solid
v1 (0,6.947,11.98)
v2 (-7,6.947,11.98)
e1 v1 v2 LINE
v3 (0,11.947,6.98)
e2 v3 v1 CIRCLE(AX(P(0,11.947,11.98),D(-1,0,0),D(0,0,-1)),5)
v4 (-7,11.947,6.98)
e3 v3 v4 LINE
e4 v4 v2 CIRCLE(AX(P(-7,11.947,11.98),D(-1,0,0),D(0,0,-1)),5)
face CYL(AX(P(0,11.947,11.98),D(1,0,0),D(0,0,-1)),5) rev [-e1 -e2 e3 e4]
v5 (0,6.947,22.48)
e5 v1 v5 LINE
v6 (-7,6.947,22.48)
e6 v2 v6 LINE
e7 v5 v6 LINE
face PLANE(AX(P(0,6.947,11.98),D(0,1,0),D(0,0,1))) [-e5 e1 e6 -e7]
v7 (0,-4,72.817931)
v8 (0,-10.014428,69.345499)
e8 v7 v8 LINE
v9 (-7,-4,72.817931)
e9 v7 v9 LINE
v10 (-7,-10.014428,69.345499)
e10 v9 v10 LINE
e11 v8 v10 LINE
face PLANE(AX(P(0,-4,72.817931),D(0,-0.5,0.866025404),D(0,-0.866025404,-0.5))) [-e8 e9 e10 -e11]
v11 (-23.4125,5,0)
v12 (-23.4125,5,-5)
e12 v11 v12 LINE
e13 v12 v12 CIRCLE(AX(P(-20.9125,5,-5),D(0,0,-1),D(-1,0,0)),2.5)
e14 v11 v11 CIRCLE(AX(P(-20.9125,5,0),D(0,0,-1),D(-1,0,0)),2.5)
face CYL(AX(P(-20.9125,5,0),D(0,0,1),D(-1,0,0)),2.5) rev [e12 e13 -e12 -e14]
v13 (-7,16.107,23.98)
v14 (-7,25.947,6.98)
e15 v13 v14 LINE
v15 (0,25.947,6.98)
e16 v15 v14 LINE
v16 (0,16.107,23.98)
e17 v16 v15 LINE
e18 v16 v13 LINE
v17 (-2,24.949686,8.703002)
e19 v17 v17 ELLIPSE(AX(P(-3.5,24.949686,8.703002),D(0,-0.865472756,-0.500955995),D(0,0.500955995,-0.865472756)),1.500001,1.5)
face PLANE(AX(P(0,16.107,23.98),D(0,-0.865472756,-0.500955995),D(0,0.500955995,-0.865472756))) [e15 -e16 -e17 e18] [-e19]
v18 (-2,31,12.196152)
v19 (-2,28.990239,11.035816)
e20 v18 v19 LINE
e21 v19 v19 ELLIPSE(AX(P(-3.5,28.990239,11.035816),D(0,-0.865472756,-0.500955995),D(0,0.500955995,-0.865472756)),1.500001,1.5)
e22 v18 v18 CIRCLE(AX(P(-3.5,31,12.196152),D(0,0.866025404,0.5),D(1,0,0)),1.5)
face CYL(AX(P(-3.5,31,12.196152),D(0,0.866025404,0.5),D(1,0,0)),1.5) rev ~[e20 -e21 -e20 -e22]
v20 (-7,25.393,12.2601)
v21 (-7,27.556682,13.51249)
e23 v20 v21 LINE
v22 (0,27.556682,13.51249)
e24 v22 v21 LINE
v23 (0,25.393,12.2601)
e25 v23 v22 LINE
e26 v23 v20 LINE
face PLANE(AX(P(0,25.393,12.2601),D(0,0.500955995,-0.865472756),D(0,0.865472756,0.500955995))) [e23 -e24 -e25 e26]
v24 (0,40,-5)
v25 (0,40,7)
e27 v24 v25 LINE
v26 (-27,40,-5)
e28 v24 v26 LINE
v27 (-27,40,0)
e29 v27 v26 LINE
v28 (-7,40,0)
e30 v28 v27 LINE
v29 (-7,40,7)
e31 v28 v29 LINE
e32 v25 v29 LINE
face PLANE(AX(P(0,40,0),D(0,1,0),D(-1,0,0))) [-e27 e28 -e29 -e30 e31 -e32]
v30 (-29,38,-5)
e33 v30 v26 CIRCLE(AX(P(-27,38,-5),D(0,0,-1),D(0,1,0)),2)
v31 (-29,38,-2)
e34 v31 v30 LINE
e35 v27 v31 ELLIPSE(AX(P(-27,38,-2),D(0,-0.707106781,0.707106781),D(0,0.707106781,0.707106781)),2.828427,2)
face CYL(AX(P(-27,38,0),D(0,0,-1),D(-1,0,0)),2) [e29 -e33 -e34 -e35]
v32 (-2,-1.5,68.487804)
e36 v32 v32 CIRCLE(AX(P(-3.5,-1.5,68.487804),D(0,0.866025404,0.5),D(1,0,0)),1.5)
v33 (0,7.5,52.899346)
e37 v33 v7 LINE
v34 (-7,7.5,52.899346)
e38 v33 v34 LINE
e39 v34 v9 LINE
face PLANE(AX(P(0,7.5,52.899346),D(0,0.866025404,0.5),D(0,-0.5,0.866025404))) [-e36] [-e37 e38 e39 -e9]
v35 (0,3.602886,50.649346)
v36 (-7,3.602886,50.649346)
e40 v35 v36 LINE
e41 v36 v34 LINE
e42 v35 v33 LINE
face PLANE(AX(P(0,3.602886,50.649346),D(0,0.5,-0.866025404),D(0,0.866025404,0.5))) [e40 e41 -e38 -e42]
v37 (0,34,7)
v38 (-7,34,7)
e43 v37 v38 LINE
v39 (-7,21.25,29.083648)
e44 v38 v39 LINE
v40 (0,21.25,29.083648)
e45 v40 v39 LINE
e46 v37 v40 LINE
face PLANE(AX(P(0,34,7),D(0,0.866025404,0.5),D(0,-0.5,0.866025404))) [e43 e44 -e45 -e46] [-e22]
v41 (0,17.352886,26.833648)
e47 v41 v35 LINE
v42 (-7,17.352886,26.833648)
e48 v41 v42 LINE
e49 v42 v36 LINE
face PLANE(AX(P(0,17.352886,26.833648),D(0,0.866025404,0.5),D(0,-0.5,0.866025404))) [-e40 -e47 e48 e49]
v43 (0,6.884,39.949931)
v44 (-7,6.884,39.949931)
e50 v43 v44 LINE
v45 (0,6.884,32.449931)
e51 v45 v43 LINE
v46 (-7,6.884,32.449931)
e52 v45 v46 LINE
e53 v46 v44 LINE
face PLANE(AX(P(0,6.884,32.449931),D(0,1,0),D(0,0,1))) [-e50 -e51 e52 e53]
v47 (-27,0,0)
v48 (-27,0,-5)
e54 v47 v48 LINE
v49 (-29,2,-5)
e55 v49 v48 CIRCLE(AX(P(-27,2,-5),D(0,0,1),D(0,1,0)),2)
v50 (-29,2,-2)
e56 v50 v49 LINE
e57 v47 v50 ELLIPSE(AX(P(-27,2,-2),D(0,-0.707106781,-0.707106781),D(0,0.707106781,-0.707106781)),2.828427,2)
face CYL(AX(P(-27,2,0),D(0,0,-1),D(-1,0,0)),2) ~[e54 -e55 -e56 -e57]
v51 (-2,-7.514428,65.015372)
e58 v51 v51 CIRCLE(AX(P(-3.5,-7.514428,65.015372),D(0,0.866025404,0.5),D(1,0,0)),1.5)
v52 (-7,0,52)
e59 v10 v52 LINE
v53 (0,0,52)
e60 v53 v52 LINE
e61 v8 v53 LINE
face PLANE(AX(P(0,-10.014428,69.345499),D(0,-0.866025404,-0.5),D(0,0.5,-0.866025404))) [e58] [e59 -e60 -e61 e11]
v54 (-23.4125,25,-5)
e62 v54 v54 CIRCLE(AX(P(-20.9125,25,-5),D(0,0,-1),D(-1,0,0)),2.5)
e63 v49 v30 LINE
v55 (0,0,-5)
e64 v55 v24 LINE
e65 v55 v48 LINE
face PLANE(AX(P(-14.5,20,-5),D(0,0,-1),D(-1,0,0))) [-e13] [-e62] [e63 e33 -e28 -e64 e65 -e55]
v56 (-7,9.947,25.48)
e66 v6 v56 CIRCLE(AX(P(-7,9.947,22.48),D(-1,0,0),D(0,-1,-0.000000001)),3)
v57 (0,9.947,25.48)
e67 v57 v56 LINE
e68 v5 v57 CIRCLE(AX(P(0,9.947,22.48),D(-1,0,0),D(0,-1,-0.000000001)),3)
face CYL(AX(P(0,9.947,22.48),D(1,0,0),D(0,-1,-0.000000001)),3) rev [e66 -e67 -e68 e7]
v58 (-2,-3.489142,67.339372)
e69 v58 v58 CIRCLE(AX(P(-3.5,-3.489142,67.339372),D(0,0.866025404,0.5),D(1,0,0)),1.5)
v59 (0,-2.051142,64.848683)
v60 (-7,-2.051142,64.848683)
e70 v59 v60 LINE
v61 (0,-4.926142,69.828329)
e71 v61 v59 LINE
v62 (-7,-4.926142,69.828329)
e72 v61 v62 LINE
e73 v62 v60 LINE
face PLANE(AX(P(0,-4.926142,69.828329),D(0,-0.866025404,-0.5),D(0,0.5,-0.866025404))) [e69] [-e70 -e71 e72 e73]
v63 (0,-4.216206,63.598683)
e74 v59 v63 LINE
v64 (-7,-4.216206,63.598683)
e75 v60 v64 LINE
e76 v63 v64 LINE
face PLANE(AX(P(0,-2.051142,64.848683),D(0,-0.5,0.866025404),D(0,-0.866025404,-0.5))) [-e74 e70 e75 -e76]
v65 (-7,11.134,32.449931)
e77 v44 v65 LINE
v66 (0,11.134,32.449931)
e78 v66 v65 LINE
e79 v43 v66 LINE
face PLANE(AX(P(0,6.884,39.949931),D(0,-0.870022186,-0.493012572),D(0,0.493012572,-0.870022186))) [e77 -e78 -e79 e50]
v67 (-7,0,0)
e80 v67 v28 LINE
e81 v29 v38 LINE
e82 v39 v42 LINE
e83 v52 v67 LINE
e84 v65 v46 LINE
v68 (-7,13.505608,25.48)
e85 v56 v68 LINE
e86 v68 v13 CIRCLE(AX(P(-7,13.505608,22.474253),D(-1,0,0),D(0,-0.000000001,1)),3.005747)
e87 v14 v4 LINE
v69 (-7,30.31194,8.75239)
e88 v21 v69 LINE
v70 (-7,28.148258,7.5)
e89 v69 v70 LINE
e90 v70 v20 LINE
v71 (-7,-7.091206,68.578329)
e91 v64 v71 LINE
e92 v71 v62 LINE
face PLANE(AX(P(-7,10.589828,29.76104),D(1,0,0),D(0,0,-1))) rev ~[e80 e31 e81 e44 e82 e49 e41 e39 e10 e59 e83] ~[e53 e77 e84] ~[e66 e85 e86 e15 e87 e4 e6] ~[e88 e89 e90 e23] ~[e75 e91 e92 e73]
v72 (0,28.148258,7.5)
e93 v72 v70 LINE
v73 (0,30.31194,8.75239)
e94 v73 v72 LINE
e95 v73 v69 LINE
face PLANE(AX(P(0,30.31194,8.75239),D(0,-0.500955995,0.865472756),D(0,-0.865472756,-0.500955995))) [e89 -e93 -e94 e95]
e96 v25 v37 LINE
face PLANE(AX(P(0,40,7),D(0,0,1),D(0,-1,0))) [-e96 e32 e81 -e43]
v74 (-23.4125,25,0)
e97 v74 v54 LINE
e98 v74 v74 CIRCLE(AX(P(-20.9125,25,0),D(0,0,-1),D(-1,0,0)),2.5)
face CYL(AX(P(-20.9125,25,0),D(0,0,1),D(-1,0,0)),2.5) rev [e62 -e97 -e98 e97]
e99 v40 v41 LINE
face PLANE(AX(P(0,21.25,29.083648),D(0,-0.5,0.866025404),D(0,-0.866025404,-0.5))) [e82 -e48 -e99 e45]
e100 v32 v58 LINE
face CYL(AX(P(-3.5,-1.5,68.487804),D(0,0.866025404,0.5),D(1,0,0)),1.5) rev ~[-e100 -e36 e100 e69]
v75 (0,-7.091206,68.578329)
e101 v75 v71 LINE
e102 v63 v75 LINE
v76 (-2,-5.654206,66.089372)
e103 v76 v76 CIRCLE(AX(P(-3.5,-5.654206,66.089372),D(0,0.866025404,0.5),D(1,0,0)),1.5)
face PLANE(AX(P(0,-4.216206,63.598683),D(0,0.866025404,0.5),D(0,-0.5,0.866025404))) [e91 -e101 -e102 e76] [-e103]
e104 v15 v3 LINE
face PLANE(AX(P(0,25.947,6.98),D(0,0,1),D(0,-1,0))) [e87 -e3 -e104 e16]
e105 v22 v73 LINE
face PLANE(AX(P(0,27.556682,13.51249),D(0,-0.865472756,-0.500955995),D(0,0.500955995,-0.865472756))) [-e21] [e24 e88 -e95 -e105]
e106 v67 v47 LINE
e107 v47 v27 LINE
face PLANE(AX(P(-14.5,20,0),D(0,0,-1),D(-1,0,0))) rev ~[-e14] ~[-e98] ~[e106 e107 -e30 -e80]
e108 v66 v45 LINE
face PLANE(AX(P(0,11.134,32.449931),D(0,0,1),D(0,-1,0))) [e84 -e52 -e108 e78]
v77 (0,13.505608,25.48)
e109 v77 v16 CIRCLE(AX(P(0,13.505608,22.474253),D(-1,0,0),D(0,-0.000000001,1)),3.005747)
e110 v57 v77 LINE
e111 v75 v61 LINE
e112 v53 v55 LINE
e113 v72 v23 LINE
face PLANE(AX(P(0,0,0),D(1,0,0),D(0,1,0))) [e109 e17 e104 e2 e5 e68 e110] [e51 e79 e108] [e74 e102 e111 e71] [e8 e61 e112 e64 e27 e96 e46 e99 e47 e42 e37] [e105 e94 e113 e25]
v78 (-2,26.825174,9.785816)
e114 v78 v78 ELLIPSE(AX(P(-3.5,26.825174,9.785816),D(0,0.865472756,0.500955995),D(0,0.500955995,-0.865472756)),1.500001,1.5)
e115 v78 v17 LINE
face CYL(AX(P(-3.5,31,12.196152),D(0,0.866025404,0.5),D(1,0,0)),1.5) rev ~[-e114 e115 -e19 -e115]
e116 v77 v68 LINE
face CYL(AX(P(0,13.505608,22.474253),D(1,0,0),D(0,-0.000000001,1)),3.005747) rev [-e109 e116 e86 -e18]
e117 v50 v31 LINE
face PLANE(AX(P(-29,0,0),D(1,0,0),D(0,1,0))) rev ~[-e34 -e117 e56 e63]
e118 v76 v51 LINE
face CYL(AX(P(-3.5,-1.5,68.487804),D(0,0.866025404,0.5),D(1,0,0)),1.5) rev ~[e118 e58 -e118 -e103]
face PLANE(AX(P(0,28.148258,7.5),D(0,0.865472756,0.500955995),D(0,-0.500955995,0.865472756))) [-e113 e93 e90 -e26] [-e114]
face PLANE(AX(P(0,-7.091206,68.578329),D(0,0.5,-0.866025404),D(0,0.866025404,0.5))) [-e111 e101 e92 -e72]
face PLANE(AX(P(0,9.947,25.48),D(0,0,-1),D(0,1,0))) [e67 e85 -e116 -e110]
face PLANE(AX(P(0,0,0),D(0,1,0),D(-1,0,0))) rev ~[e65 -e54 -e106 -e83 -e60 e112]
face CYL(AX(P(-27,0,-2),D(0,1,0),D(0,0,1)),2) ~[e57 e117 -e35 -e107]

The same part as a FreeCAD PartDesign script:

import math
import FreeCAD as App
import Part
import Sketcher
from FreeCAD import Vector
Q = App.Units.Quantity


def edges_at(feature, points):
    """Names of the edges that pass closest to the given points."""
    edges = feature.Shape.Edges
    near = lambda p: min(range(len(edges)), key=lambda i: edges[i].distToShape(Part.Vertex(*p))[0])
    return sorted({f"Edge{near(p) + 1}" for p in points})

doc = App.newDocument("Part")
body = doc.addObject("PartDesign::Body", "Body")

# Sketch on YZ plane
sketch1 = body.newObject("Sketcher::SketchObject", "Sketch")
sketch1.AttachmentSupport = (doc.getObject("YZ_Plane"), [""])
sketch1.MapMode = "FlatFace"
sketch1.addGeometry(Part.LineSegment(Vector(0, 0, 0), Vector(40, 0, 0)), False)
sketch1.addGeometry(Part.LineSegment(Vector(40, 0, 0), Vector(40, 7, 0)), False)
sketch1.addGeometry(Part.LineSegment(Vector(40, 7, 0), Vector(34, 7, 0)), False)
sketch1.addGeometry(Part.LineSegment(Vector(34, 7, 0), Vector(21.2, 29.1, 0)), False)
sketch1.addGeometry(Part.LineSegment(Vector(21.2, 29.1, 0), Vector(17.4, 26.8, 0)), False)
sketch1.addGeometry(Part.LineSegment(Vector(17.4, 26.8, 0), Vector(3.6, 50.6, 0)), False)
sketch1.addGeometry(Part.LineSegment(Vector(3.6, 50.6, 0), Vector(7.5, 52.9, 0)), False)
sketch1.addGeometry(Part.LineSegment(Vector(7.5, 52.9, 0), Vector(-4, 72.8, 0)), False)
sketch1.addGeometry(Part.LineSegment(Vector(-4, 72.8, 0), Vector(-10, 69.3, 0)), False)
sketch1.addGeometry(Part.LineSegment(Vector(-10, 69.3, 0), Vector(0, 52, 0)), False)
sketch1.addGeometry(Part.LineSegment(Vector(0, 52, 0), Vector(0, 0, 0)), False)
sketch1.addGeometry(Part.LineSegment(Vector(-7.1, 68.6, 0), Vector(-4.9, 69.8, 0)), False)
sketch1.addGeometry(Part.LineSegment(Vector(-4.9, 69.8, 0), Vector(-2.1, 64.8, 0)), False)
sketch1.addGeometry(Part.LineSegment(Vector(-2.1, 64.8, 0), Vector(-4.2, 63.6, 0)), False)
sketch1.addGeometry(Part.LineSegment(Vector(-4.2, 63.6, 0), Vector(-7.1, 68.6, 0)), False)
sketch1.addGeometry(Part.LineSegment(Vector(6.9, 32.4, 0), Vector(6.9, 39.9, 0)), False)
sketch1.addGeometry(Part.LineSegment(Vector(6.9, 39.9, 0), Vector(11.1, 32.4, 0)), False)
sketch1.addGeometry(Part.LineSegment(Vector(11.1, 32.4, 0), Vector(6.9, 32.4, 0)), False)
sketch1.addGeometry(Part.LineSegment(Vector(16.1, 24, 0), Vector(25.9, 7, 0)), False)
sketch1.addGeometry(Part.LineSegment(Vector(25.9, 7, 0), Vector(11.9, 7, 0)), False)
sketch1.addGeometry(Part.ArcOfCircle(Part.Circle(Vector(11.9, 12, 0), Vector(0, 0, 1), 5), math.radians(180), math.radians(270)), False)
sketch1.addGeometry(Part.LineSegment(Vector(6.9, 12, 0), Vector(6.9, 22.5, 0)), False)
sketch1.addGeometry(Part.ArcOfCircle(Part.Circle(Vector(9.9, 22.5, 0), Vector(0, 0, 1), 3), math.radians(90), math.radians(180)), False)
sketch1.addGeometry(Part.LineSegment(Vector(9.9, 25.5, 0), Vector(13.5, 25.5, 0)), False)
sketch1.addGeometry(Part.ArcOfCircle(Part.Circle(Vector(13.5, 22.5, 0), Vector(0, 0, 1), 3), math.radians(30), math.radians(90)), False)
sketch1.addGeometry(Part.LineSegment(Vector(25.4, 12.3, 0), Vector(27.6, 13.5, 0)), False)
sketch1.addGeometry(Part.LineSegment(Vector(27.6, 13.5, 0), Vector(30.3, 8.8, 0)), False)
sketch1.addGeometry(Part.LineSegment(Vector(30.3, 8.8, 0), Vector(28.1, 7.5, 0)), False)
sketch1.addGeometry(Part.LineSegment(Vector(28.1, 7.5, 0), Vector(25.4, 12.3, 0)), False)
sketch1.addConstraint(Sketcher.Constraint("Coincident", 0, 2, 1, 1))
sketch1.addConstraint(Sketcher.Constraint("Coincident", 1, 2, 2, 1))
sketch1.addConstraint(Sketcher.Constraint("Coincident", 2, 2, 3, 1))
sketch1.addConstraint(Sketcher.Constraint("Coincident", 3, 2, 4, 1))
sketch1.addConstraint(Sketcher.Constraint("Coincident", 4, 2, 5, 1))
sketch1.addConstraint(Sketcher.Constraint("Coincident", 5, 2, 6, 1))
sketch1.addConstraint(Sketcher.Constraint("Coincident", 6, 2, 7, 1))
sketch1.addConstraint(Sketcher.Constraint("Coincident", 7, 2, 8, 1))
sketch1.addConstraint(Sketcher.Constraint("Coincident", 8, 2, 9, 1))
sketch1.addConstraint(Sketcher.Constraint("Coincident", 9, 2, 10, 1))
sketch1.addConstraint(Sketcher.Constraint("Coincident", 10, 2, 0, 1))
sketch1.addConstraint(Sketcher.Constraint("Coincident", 11, 2, 12, 1))
sketch1.addConstraint(Sketcher.Constraint("Coincident", 12, 2, 13, 1))
sketch1.addConstraint(Sketcher.Constraint("Coincident", 13, 2, 14, 1))
sketch1.addConstraint(Sketcher.Constraint("Coincident", 14, 2, 11, 1))
sketch1.addConstraint(Sketcher.Constraint("Coincident", 15, 2, 16, 1))
sketch1.addConstraint(Sketcher.Constraint("Coincident", 16, 2, 17, 1))
sketch1.addConstraint(Sketcher.Constraint("Coincident", 17, 2, 15, 1))
sketch1.addConstraint(Sketcher.Constraint("Coincident", 18, 2, 19, 1))
sketch1.addConstraint(Sketcher.Constraint("Tangent", 19, 2, 20, 2))
sketch1.addConstraint(Sketcher.Constraint("Tangent", 20, 1, 21, 1))
sketch1.addConstraint(Sketcher.Constraint("Tangent", 21, 2, 22, 2))
sketch1.addConstraint(Sketcher.Constraint("Tangent", 22, 1, 23, 1))
sketch1.addConstraint(Sketcher.Constraint("Tangent", 23, 2, 24, 2))
sketch1.addConstraint(Sketcher.Constraint("Tangent", 24, 1, 18, 1))
sketch1.addConstraint(Sketcher.Constraint("Coincident", 25, 2, 26, 1))
sketch1.addConstraint(Sketcher.Constraint("Coincident", 26, 2, 27, 1))
sketch1.addConstraint(Sketcher.Constraint("Coincident", 27, 2, 28, 1))
sketch1.addConstraint(Sketcher.Constraint("Coincident", 28, 2, 25, 1))
sketch1.addConstraint(Sketcher.Constraint("Horizontal", 0))
sketch1.addConstraint(Sketcher.Constraint("Vertical", 1))
sketch1.addConstraint(Sketcher.Constraint("Horizontal", 2))
sketch1.addConstraint(Sketcher.Constraint("Vertical", 10))
sketch1.addConstraint(Sketcher.Constraint("Vertical", 15))
sketch1.addConstraint(Sketcher.Constraint("Horizontal", 17))
sketch1.addConstraint(Sketcher.Constraint("Horizontal", 19))
sketch1.addConstraint(Sketcher.Constraint("Vertical", 21))
sketch1.addConstraint(Sketcher.Constraint("Horizontal", 23))
sketch1.addConstraint(Sketcher.Constraint("Coincident", 10, 2, -1, 1))
sketch1.addConstraint(Sketcher.Constraint("Perpendicular", 3, 4))
sketch1.addConstraint(Sketcher.Constraint("Perpendicular", 4, 5))
sketch1.addConstraint(Sketcher.Constraint("Perpendicular", 5, 6))
sketch1.addConstraint(Sketcher.Constraint("Perpendicular", 6, 7))
sketch1.addConstraint(Sketcher.Constraint("Perpendicular", 7, 8))
sketch1.addConstraint(Sketcher.Constraint("Perpendicular", 8, 9))
sketch1.addConstraint(Sketcher.Constraint("Perpendicular", 9, 11))
sketch1.addConstraint(Sketcher.Constraint("Perpendicular", 11, 12))
sketch1.addConstraint(Sketcher.Constraint("Perpendicular", 12, 13))
sketch1.addConstraint(Sketcher.Constraint("Perpendicular", 13, 14))
sketch1.addConstraint(Sketcher.Constraint("Perpendicular", 18, 25))
sketch1.addConstraint(Sketcher.Constraint("Perpendicular", 25, 26))
sketch1.addConstraint(Sketcher.Constraint("Perpendicular", 26, 27))
sketch1.addConstraint(Sketcher.Constraint("Perpendicular", 27, 28))
sketch1.addConstraint(Sketcher.Constraint("Equal", 4, 6))
sketch1.addConstraint(Sketcher.Constraint("Equal", 13, 25))
sketch1.addConstraint(Sketcher.Constraint("Radius", 20, 5.0))
sketch1.addConstraint(Sketcher.Constraint("Radius", 22, 3.0))
sketch1.addConstraint(Sketcher.Constraint("DistanceX", 0, 1, 0, 2, 40.0))
sketch1.addConstraint(Sketcher.Constraint("DistanceX", 2, 2, 2, 1, 6.0))
sketch1.addConstraint(Sketcher.Constraint("DistanceX", 19, 2, 19, 1, 14.0))
sketch1.addConstraint(Sketcher.Constraint("DistanceY", 1, 1, 1, 2, 7.0))
sketch1.addConstraint(Sketcher.Constraint("DistanceY", 10, 2, 10, 1, 52.0))
sketch1.addConstraint(Sketcher.Constraint("Angle", 3, Q("120 deg")))
sketch1.addConstraint(Sketcher.Constraint("Distance", 7, 23.0))
sketch1.addConstraint(Sketcher.Constraint("DistanceY", 15, 1, 15, 2, 7.5))
sketch1.addConstraint(Sketcher.Constraint("DistanceY", 21, 1, 21, 2, 10.5))
sketch1.addConstraint(Sketcher.Constraint("DistanceX", 7, 2, -1, 1, 4.0))
sketch1.addConstraint(Sketcher.Constraint("Distance", 3, 25.5))
sketch1.addConstraint(Sketcher.Constraint("Distance", 4, 4.5))
sketch1.addConstraint(Sketcher.Constraint("Distance", 11, 2.5))
sketch1.addConstraint(Sketcher.Constraint("Distance", 26, 5.5))
sketch1.addConstraint(Sketcher.Constraint("DistanceX", 17, 2, 17, 1, 4.25))
sketch1.addConstraint(Sketcher.Constraint("DistanceY", -1, 1, 27, 2, 7.5))
sketch1.addConstraint(Sketcher.Constraint("DistanceY", 24, 1, 23, 2, 1.5))
sketch1.addConstraint(Sketcher.Constraint("Distance", 12, 5.75))
sketch1.addConstraint(Sketcher.Constraint("DistanceY", -1, 1, 20, 3, 11.98))
sketch1.addConstraint(Sketcher.Constraint("DistanceX", 22, 1, 24, 1, 6.16))
sketch1.addConstraint(Sketcher.Constraint("DistanceX", -1, 1, 20, 3, 11.947))
sketch1.addConstraint(Sketcher.Constraint("DistanceX", -1, 1, 15, 2, 6.884))
sketch1.addConstraint(Sketcher.Constraint("DistanceX", -1, 1, 28, 2, 25.393))
sketch1.addConstraint(Sketcher.Constraint("DistanceY", 11, 2, 7, 2, 2.989602))
sketch1.addConstraint(Sketcher.Constraint("DistanceY", -1, 1, 15, 2, 39.949931))
sketch1.addConstraint(Sketcher.Constraint("DistanceX", 11, 2, 5, 2, 8.529028))
pad1 = body.newObject("PartDesign::Pad", "Pad")
pad1.Profile = sketch1
pad1.Length = 7
pad1.Reversed = True

# Sketch on XY plane
sketch2 = body.newObject("Sketcher::SketchObject", "Sketch001")
sketch2.AttachmentSupport = (doc.getObject("XY_Plane"), [""])
sketch2.MapMode = "FlatFace"
sketch2.addGeometry(Part.LineSegment(Vector(0, 40, 0), Vector(0, 0, 0)), False)
sketch2.addGeometry(Part.LineSegment(Vector(0, 0, 0), Vector(-29, 0, 0)), False)
sketch2.addGeometry(Part.LineSegment(Vector(-29, 0, 0), Vector(-29, 40, 0)), False)
sketch2.addGeometry(Part.LineSegment(Vector(-29, 40, 0), Vector(0, 40, 0)), False)
sketch2.addGeometry(Part.Circle(Vector(-20.9, 5, 0), Vector(0, 0, 1), 2.5), False)
sketch2.addGeometry(Part.Circle(Vector(-20.9, 25, 0), Vector(0, 0, 1), 2.5), False)
sketch2.addConstraint(Sketcher.Constraint("Coincident", 0, 2, 1, 1))
sketch2.addConstraint(Sketcher.Constraint("Coincident", 1, 2, 2, 1))
sketch2.addConstraint(Sketcher.Constraint("Coincident", 2, 2, 3, 1))
sketch2.addConstraint(Sketcher.Constraint("Coincident", 3, 2, 0, 1))
sketch2.addConstraint(Sketcher.Constraint("Vertical", 0))
sketch2.addConstraint(Sketcher.Constraint("Horizontal", 1))
sketch2.addConstraint(Sketcher.Constraint("Vertical", 2))
sketch2.addConstraint(Sketcher.Constraint("Horizontal", 3))
sketch2.addConstraint(Sketcher.Constraint("Coincident", 0, 2, -1, 1))
sketch2.addConstraint(Sketcher.Constraint("Equal", 4, 5))
sketch2.addConstraint(Sketcher.Constraint("Vertical", 4, 3, 5, 3))
sketch2.addConstraint(Sketcher.Constraint("Diameter", 4, 5.0))
sketch2.addConstraint(Sketcher.Constraint("DistanceX", 1, 2, 1, 1, 29.0))
sketch2.addConstraint(Sketcher.Constraint("DistanceY", 0, 2, 0, 1, 40.0))
sketch2.addConstraint(Sketcher.Constraint("DistanceY", -1, 1, 4, 3, 5.0))
sketch2.addConstraint(Sketcher.Constraint("DistanceY", -1, 1, 5, 3, 25.0))
sketch2.addConstraint(Sketcher.Constraint("DistanceX", 4, 3, -1, 1, 20.9125))
pad2 = body.newObject("PartDesign::Pad", "Pad001")
pad2.Profile = sketch2
pad2.Length = 5
pad2.Reversed = True
doc.recompute()

fillet = body.newObject("PartDesign::Fillet", "Fillet")
fillet.Base = (pad2, edges_at(pad2, [(-29, 20, 0), (-29, 0, -2.5), (-29, 40, -2.5)]))
fillet.Radius = 2

# Sketch on an angled plane
sketch3 = body.newObject("Sketcher::SketchObject", "Sketch002")
sketch3.Placement = App.Placement(Vector(0, 28.531089, 16.472432), App.Rotation(Vector(1, 0, 0), Vector(0, 0.5, -0.866025404), Vector(0, 0.866025404, 0.5), "ZXY"))
sketch3.addGeometry(Part.Circle(Vector(-3.5, 4.9, 0), Vector(0, 0, 1), 1.5), False)
sketch3.addGeometry(Part.Circle(Vector(-3.5, -60.1, 0), Vector(0, 0, 1), 1.5), False)
sketch3.addConstraint(Sketcher.Constraint("Equal", 0, 1))
sketch3.addConstraint(Sketcher.Constraint("Vertical", 0, 3, 1, 3))
sketch3.addConstraint(Sketcher.Constraint("Diameter", 0, 3.0))
sketch3.addConstraint(Sketcher.Constraint("DistanceY", 1, 3, 0, 3, 65.0))
sketch3.addConstraint(Sketcher.Constraint("DistanceX", 0, 3, -1, 1, 3.5))
sketch3.addConstraint(Sketcher.Constraint("DistanceY", -1, 1, 0, 3, 4.937822))
pocket1 = body.newObject("PartDesign::Pocket", "Pocket")
pocket1.Profile = sketch3
pocket1.Length = 7.5

doc.recompute()
